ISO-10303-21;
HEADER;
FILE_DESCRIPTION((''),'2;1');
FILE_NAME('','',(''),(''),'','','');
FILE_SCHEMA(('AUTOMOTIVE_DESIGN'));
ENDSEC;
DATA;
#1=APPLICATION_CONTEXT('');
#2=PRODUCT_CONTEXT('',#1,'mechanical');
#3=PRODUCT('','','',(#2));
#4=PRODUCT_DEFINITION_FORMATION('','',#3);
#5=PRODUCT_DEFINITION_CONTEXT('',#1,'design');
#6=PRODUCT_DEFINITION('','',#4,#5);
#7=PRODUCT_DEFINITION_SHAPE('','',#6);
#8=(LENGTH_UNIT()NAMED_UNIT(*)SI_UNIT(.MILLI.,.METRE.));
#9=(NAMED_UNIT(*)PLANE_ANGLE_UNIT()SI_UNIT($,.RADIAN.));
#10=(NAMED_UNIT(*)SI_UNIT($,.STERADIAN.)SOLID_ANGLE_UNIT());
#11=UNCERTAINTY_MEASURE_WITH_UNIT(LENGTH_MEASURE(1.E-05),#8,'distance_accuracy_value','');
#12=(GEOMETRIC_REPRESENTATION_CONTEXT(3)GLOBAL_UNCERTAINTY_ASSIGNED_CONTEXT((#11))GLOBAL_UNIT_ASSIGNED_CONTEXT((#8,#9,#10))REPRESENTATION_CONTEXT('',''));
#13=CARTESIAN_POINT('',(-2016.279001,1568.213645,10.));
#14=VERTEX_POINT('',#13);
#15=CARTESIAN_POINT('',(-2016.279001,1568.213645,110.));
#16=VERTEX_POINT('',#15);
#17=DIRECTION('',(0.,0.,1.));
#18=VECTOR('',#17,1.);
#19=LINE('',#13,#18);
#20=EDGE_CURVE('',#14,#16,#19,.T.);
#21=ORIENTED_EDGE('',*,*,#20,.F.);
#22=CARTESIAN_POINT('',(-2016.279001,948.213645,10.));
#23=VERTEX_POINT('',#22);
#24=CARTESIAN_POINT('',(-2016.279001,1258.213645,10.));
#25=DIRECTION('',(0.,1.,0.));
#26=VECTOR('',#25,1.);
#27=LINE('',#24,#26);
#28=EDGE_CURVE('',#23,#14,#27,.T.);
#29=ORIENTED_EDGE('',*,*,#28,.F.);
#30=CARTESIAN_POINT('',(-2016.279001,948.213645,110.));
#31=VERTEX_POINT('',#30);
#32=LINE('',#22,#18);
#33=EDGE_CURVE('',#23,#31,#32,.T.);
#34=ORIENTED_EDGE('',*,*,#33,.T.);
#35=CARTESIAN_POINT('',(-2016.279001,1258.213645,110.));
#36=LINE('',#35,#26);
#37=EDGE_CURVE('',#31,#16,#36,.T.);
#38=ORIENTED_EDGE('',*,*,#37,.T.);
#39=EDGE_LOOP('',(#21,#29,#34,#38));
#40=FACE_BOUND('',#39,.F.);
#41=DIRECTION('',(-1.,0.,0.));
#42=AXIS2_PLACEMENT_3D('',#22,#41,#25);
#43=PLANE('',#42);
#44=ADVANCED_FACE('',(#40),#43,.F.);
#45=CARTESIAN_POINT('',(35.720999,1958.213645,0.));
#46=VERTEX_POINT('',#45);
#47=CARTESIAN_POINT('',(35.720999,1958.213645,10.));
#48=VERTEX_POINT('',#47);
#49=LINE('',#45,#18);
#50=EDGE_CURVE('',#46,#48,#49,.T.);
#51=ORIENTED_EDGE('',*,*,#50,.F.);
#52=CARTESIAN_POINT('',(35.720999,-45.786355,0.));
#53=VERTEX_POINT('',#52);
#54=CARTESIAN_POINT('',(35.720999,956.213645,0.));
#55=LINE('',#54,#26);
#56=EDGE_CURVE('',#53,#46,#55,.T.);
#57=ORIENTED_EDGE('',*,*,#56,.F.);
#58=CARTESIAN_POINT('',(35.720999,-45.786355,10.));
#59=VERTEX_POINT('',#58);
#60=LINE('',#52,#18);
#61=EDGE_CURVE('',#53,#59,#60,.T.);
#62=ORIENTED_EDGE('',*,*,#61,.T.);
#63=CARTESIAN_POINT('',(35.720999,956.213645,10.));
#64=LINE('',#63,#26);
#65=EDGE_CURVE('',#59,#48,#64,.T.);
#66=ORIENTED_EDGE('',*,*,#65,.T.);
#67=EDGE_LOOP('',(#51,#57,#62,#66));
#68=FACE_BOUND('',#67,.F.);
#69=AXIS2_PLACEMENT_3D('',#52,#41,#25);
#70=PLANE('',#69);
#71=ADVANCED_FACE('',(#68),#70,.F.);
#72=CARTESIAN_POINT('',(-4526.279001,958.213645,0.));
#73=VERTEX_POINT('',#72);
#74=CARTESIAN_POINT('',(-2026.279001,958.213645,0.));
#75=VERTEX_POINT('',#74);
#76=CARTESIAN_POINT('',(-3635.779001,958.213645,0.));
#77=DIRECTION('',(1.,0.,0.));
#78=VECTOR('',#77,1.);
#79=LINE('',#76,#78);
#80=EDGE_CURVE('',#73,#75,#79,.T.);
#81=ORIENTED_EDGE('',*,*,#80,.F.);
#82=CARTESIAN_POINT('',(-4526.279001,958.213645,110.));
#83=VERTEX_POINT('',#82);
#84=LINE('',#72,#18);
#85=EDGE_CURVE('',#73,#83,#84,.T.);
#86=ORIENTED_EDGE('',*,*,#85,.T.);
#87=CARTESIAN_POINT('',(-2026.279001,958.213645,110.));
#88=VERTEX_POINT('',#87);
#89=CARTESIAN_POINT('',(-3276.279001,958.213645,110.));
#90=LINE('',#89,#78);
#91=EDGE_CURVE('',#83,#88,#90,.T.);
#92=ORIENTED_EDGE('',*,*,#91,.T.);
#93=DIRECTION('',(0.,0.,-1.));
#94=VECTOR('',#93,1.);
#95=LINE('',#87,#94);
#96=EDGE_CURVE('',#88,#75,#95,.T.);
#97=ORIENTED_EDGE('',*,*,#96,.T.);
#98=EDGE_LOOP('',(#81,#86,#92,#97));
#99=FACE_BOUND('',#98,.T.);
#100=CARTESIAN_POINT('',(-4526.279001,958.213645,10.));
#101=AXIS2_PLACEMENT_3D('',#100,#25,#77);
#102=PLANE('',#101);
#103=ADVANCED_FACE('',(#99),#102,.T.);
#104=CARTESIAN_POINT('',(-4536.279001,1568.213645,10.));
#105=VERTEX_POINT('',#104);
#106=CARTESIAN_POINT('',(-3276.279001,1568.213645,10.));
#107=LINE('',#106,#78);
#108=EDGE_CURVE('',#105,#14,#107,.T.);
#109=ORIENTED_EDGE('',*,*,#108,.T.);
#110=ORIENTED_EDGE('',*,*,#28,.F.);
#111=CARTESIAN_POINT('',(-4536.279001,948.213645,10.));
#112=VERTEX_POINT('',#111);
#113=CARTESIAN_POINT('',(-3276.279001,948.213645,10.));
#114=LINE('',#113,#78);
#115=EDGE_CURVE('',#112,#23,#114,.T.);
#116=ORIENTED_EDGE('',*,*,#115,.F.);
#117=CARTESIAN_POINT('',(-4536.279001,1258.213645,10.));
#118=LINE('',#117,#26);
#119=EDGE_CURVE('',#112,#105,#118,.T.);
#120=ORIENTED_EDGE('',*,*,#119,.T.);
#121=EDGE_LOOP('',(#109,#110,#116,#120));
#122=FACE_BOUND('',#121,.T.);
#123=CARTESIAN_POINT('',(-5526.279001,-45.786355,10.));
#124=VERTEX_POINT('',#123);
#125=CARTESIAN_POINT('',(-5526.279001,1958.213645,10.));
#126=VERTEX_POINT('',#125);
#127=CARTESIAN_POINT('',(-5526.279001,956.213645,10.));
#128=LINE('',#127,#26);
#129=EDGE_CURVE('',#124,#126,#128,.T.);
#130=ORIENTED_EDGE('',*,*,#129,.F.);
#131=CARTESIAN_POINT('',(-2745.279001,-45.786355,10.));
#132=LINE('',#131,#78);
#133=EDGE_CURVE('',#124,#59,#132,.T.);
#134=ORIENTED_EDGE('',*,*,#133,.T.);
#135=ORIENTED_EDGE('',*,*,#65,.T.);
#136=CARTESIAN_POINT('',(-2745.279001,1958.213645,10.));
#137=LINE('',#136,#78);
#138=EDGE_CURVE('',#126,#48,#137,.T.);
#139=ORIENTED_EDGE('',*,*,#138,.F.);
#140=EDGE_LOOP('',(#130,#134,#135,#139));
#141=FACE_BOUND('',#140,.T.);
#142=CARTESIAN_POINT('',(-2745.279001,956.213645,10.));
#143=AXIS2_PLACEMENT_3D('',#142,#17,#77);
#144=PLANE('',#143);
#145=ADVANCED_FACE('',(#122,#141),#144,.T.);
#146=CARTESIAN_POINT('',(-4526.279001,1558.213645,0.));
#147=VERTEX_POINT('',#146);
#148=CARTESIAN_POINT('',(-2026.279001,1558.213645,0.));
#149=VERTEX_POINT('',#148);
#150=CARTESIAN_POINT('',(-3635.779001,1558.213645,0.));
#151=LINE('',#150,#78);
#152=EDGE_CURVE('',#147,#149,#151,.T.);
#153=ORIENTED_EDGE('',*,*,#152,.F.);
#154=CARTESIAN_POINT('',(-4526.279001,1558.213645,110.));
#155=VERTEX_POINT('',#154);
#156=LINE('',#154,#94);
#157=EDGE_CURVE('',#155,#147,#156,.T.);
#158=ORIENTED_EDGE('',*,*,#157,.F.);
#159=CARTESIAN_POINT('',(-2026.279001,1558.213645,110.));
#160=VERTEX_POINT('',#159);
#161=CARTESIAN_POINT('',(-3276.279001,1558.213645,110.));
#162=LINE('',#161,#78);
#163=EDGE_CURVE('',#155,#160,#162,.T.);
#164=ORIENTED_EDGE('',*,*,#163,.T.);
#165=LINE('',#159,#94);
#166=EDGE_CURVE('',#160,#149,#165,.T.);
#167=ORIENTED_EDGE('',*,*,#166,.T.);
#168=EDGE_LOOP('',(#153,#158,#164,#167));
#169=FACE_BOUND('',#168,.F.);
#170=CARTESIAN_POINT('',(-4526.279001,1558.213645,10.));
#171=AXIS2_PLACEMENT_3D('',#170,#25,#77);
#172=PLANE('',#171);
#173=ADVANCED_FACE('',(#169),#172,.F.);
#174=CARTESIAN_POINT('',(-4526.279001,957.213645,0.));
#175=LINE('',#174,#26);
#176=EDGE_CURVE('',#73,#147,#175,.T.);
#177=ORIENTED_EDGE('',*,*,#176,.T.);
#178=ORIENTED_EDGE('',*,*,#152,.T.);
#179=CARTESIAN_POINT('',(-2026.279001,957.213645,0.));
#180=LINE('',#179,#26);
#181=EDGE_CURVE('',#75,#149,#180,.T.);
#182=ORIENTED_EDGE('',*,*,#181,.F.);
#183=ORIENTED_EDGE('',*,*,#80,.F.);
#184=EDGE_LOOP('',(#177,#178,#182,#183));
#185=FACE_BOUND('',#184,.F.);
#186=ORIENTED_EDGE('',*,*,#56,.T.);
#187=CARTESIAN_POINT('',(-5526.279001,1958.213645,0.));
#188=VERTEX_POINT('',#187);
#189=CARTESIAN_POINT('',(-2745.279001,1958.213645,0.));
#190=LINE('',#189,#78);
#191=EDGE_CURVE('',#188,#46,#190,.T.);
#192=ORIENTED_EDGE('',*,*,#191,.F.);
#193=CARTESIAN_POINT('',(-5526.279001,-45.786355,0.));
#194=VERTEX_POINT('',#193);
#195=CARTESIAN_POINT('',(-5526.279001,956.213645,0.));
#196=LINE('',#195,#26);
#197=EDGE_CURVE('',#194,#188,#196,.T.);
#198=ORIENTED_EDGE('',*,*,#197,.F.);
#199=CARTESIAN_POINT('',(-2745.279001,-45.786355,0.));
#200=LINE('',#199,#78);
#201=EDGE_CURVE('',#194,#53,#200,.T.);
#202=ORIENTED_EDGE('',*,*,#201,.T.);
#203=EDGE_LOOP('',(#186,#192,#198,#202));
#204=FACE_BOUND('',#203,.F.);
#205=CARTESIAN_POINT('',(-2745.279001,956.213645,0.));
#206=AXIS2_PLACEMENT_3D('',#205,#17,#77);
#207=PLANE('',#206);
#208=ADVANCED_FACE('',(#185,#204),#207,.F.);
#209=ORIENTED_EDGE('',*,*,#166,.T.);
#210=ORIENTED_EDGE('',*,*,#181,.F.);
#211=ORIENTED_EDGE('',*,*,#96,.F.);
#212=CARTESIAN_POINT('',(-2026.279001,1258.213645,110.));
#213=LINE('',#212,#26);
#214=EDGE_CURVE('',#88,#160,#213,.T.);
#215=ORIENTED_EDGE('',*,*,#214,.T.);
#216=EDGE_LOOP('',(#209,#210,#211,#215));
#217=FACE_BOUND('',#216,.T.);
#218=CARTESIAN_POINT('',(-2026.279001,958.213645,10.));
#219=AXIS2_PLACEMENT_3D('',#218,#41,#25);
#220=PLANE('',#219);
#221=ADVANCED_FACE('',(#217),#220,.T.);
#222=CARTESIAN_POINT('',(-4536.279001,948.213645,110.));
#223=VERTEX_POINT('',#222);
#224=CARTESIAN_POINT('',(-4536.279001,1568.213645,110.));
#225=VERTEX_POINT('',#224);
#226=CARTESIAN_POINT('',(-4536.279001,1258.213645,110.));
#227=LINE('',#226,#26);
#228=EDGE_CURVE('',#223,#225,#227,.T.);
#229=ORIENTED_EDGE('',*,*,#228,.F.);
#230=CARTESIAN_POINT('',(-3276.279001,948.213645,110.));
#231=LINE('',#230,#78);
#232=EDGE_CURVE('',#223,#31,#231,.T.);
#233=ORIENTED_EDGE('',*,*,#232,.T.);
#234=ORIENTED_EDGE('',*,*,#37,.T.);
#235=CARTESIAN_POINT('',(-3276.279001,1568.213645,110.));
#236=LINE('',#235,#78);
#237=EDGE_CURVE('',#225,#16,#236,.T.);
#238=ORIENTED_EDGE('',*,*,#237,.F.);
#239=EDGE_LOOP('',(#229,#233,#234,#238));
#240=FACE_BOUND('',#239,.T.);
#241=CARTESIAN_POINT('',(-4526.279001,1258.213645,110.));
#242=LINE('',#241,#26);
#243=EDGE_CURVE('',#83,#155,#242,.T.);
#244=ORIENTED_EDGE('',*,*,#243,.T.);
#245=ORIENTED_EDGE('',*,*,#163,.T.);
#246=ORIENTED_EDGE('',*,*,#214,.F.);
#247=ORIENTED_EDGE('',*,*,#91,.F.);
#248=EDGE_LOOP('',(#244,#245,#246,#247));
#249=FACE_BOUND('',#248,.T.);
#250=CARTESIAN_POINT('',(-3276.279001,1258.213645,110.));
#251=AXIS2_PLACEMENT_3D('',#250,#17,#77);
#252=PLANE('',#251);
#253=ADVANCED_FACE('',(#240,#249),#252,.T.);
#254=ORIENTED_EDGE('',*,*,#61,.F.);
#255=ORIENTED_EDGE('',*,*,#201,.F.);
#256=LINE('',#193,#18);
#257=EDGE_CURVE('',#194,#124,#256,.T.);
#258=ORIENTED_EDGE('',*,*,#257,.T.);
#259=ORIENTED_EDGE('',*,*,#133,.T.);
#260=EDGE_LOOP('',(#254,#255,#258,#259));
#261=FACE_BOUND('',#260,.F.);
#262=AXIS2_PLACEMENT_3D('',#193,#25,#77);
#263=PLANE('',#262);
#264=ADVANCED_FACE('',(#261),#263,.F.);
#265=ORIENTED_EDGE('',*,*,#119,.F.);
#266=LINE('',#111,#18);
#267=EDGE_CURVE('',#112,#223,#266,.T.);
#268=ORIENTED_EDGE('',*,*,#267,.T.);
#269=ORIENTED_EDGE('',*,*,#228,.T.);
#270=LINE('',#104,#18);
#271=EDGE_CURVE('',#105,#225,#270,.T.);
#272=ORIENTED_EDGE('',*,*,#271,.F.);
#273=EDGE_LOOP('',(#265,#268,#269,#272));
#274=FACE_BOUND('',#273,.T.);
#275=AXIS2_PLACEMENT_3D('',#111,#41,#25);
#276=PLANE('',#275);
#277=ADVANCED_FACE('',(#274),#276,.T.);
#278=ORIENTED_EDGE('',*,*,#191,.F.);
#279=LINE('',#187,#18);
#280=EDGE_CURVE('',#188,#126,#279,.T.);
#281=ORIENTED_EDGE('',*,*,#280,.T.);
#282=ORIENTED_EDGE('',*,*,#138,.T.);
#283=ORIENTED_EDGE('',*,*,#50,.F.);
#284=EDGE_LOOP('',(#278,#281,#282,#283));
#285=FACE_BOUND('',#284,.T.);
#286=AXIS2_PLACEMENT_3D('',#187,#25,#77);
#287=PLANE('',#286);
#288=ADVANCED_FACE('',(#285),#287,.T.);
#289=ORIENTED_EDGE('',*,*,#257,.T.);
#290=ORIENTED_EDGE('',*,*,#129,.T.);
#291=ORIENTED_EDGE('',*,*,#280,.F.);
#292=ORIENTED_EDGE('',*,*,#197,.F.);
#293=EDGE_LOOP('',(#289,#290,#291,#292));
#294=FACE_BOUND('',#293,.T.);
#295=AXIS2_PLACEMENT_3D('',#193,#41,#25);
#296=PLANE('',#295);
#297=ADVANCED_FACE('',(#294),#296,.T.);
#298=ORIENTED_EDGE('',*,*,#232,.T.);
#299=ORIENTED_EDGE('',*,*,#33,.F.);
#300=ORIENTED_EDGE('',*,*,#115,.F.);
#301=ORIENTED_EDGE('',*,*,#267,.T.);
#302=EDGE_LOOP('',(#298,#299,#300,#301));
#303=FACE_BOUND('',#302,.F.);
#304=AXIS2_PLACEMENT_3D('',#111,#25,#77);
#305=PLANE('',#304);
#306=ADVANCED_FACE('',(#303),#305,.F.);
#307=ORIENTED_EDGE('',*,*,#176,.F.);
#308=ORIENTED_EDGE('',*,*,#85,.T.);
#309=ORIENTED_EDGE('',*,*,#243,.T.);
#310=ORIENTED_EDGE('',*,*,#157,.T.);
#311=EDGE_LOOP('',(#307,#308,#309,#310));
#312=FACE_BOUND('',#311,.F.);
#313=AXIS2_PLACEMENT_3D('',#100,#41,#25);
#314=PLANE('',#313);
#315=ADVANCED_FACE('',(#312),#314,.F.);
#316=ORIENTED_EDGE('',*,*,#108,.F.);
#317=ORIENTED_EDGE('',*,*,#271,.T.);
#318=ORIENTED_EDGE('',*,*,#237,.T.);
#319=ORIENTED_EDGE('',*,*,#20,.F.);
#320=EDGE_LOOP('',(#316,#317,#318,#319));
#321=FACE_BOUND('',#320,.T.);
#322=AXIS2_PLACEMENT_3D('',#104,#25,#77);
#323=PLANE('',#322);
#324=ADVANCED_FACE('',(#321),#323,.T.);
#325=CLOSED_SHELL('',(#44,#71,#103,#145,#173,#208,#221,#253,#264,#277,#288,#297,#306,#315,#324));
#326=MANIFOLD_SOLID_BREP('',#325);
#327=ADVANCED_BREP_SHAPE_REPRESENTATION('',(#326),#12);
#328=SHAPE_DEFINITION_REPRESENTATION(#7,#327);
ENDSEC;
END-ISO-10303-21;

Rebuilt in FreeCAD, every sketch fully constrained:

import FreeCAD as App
import Part
import Sketcher


def add_polygon(sketch, points):
    """Adds a closed chain of lines whose ends are joined by coincident constraints."""
    first, n = sketch.GeometryCount, len(points)
    for a, b in zip(points, points[1:] + points[:1]):
        sketch.addGeometry(Part.LineSegment(App.Vector(*a, 0), App.Vector(*b, 0)), False)
    for i in range(n):
        sketch.addConstraint(Sketcher.Constraint("Coincident", first + i, 2, first + (i + 1) % n, 1))

doc = App.newDocument("Part")
body = doc.addObject("PartDesign::Body", "Body")

sketch1 = body.newObject("Sketcher::SketchObject", "Sketch")
sketch1.AttachmentSupport = (doc.getObject("XY_Plane"), [""])
sketch1.MapMode = "FlatFace"
add_polygon(sketch1, [(-5526, 1958), (-5526, -46), (36, -46), (36, 1958)])
sketch1.addConstraint([
    Sketcher.Constraint("Vertical", 0),
    Sketcher.Constraint("Horizontal", 1),
    Sketcher.Constraint("Vertical", 2),
    Sketcher.Constraint("Horizontal", 3),
    Sketcher.Constraint("DistanceX", 1, 1, 1, 2, 5562.0),
    Sketcher.Constraint("DistanceY", 0, 2, 0, 1, 2004.0),
    Sketcher.Constraint("DistanceX", 0, 2, -1, 1, 5526.279001),
    Sketcher.Constraint("DistanceY", 0, 2, -1, 1, 45.786355),
])
pad1 = body.newObject("PartDesign::Pad", "Pad")
pad1.Profile = sketch1
pad1.Length = 10

sketch2 = body.newObject("Sketcher::SketchObject", "Sketch001")
sketch2.AttachmentSupport = (doc.getObject("XY_Plane"), [""])
sketch2.MapMode = "FlatFace"
sketch2.AttachmentOffset = App.Placement(App.Vector(0, 0, 10), App.Rotation())
add_polygon(sketch2, [(-4526, 1558), (-4526, 958), (-2026, 958), (-2026, 1558)])
sketch2.addConstraint([
    Sketcher.Constraint("Vertical", 0),
    Sketcher.Constraint("Horizontal", 1),
    Sketcher.Constraint("Vertical", 2),
    Sketcher.Constraint("Horizontal", 3),
    Sketcher.Constraint("DistanceX", 1, 1, 1, 2, 2500.0),
    Sketcher.Constraint("DistanceY", 0, 2, 0, 1, 600.0),
    Sketcher.Constraint("DistanceX", 0, 2, -1, 1, 4526.279001),
    Sketcher.Constraint("DistanceY", -1, 1, 0, 2, 958.213645),
])
pocket1 = body.newObject("PartDesign::Pocket", "Pocket")
pocket1.Profile = sketch2
pocket1.Length = 25

sketch3 = body.newObject("Sketcher::SketchObject", "Sketch002")
sketch3.AttachmentSupport = (doc.getObject("XY_Plane"), [""])
sketch3.MapMode = "FlatFace"
sketch3.AttachmentOffset = App.Placement(App.Vector(0, 0, 10), App.Rotation())
add_polygon(sketch3, [(-4536, 1568), (-4536, 948), (-2016, 948), (-2016, 1568)])
add_polygon(sketch3, [(-2026, 958), (-4526, 958), (-4526, 1558), (-2026, 1558)])
sketch3.addConstraint([
    Sketcher.Constraint("Vertical", 0),
    Sketcher.Constraint("Horizontal", 1),
    Sketcher.Constraint("Vertical", 2),
    Sketcher.Constraint("Horizontal", 3),
    Sketcher.Constraint("Horizontal", 4),
    Sketcher.Constraint("Vertical", 5),
    Sketcher.Constraint("Horizontal", 6),
    Sketcher.Constraint("Vertical", 7),
    Sketcher.Constraint("DistanceX", 1, 1, 1, 2, 2520.0),
    Sketcher.Constraint("DistanceX", 4, 2, 4, 1, 2500.0),
    Sketcher.Constraint("DistanceY", 0, 2, 0, 1, 620.0),
    Sketcher.Constraint("DistanceY", 5, 1, 5, 2, 600.0),
    Sketcher.Constraint("DistanceX", 0, 2, 4, 2, 10.0),
    Sketcher.Constraint("DistanceY", 0, 2, 4, 2, 10.0),
    Sketcher.Constraint("DistanceX", 0, 2, -1, 1, 4536.279001),
    Sketcher.Constraint("DistanceY", -1, 1, 0, 2, 948.213645),
])
pad2 = body.newObject("PartDesign::Pad", "Pad001")
pad2.Profile = sketch3
pad2.Length = 100

doc.recompute()
